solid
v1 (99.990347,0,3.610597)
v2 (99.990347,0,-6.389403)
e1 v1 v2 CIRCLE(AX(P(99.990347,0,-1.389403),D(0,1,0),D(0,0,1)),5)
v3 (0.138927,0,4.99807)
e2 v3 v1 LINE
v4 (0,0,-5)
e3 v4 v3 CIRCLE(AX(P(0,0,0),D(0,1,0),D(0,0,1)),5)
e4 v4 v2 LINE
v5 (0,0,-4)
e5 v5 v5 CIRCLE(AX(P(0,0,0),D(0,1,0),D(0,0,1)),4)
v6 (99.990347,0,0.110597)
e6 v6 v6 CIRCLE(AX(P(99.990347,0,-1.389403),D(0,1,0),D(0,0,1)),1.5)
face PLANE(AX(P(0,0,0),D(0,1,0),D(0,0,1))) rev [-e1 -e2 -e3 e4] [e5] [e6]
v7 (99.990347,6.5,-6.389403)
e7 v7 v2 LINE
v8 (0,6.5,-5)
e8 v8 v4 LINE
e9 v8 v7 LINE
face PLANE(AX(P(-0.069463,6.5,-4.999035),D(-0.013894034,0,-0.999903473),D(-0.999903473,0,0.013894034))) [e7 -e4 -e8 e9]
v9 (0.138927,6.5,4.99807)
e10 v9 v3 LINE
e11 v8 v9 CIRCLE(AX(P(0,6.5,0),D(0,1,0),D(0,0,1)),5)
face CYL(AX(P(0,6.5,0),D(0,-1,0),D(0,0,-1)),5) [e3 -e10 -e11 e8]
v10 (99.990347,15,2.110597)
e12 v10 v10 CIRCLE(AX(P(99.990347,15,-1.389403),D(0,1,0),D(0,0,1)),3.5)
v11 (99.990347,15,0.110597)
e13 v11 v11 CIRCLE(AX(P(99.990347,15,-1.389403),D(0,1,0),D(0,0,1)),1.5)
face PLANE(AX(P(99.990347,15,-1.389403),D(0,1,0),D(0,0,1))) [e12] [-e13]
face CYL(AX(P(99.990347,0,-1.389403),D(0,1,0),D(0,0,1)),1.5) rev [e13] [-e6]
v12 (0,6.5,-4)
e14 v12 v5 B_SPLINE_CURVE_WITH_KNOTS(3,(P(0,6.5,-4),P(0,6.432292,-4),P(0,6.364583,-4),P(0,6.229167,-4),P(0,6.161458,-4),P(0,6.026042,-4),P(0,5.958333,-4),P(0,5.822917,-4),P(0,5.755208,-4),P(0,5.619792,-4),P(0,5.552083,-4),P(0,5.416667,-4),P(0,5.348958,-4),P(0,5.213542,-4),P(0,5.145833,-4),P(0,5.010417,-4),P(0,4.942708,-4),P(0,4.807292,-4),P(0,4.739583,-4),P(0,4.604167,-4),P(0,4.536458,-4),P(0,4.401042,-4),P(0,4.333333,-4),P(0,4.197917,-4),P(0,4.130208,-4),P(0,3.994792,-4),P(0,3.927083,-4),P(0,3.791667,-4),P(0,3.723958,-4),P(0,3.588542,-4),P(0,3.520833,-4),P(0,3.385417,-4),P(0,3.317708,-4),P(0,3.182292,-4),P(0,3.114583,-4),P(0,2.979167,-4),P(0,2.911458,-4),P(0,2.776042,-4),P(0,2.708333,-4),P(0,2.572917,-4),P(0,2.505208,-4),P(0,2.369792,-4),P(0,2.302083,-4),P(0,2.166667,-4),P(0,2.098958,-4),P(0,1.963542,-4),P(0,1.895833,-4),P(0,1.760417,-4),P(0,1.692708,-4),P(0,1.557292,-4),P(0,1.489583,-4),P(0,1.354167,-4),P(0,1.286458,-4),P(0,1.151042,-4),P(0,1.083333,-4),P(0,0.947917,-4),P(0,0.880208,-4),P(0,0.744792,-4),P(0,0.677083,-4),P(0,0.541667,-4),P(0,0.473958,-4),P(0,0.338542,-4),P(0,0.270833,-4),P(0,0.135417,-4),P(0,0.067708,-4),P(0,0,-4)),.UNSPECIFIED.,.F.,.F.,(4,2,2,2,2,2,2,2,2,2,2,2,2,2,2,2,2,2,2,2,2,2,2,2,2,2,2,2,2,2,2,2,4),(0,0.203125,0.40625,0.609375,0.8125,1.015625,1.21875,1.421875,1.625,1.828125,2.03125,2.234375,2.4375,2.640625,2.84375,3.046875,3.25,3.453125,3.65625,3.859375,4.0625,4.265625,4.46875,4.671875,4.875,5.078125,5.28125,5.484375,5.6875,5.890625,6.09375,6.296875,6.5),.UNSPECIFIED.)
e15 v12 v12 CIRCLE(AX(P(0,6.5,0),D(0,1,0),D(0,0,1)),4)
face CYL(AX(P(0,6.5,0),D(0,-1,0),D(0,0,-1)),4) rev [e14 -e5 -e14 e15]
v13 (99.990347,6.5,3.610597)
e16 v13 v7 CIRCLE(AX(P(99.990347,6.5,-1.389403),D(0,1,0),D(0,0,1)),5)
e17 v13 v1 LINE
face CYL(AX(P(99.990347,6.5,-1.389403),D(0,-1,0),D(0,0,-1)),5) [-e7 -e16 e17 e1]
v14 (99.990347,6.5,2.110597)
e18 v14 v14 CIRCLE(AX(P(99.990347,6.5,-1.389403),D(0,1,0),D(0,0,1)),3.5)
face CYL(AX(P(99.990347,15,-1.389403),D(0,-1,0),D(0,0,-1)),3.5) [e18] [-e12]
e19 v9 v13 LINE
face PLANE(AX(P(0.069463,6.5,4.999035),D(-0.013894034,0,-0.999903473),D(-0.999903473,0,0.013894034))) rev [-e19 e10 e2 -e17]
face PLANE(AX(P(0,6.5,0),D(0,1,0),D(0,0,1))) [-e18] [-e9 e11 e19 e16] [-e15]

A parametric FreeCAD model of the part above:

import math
import FreeCAD as App
import Part
import Sketcher
from FreeCAD import Vector

doc = App.newDocument("Part")
body = doc.addObject("PartDesign::Body", "Body")

sketch1 = body.newObject("Sketcher::SketchObject", "Sketch")
sketch1.AttachmentSupport = (doc.getObject("XZ_Plane"), [""])
sketch1.MapMode = "FlatFace"
sketch1.addGeometry(Part.ArcOfCircle(Part.Circle(Vector(0, 0, 0), Vector(0, 0, 1), 5), math.radians(88.40781), math.radians(270)), False)
sketch1.addGeometry(Part.LineSegment(Vector(0.138927, 4.99807, 0), Vector(99.990347, 3.610597, 0)), False)
sketch1.addGeometry(Part.ArcOfCircle(Part.Circle(Vector(99.990347, -1.389403, 0), Vector(0, 0, 1), 5), math.radians(-90), math.radians(90)), False)
sketch1.addGeometry(Part.LineSegment(Vector(99.990347, -6.389403, 0), Vector(0, -5, 0)), False)
sketch1.addGeometry(Part.Circle(Vector(0, 0, 0), Vector(0, 0, 1), 4), False)
sketch1.addConstraint(Sketcher.Constraint("Coincident", 0, 1, 1, 1))
sketch1.addConstraint(Sketcher.Constraint("Coincident", 1, 2, 2, 2))
sketch1.addConstraint(Sketcher.Constraint("Coincident", 2, 1, 3, 1))
sketch1.addConstraint(Sketcher.Constraint("Coincident", 3, 2, 0, 2))
sketch1.addConstraint(Sketcher.Constraint("Coincident", 0, 3, -1, 1))
sketch1.addConstraint(Sketcher.Constraint("Coincident", 4, 3, -1, 1))
sketch1.addConstraint(Sketcher.Constraint("Equal", 0, 2))
sketch1.addConstraint(Sketcher.Constraint("PointOnObject", 3, 2, -2))
sketch1.addConstraint(Sketcher.Constraint("Parallel", 1, 3))
sketch1.addConstraint(Sketcher.Constraint("Vertical", 2, 3, 1, 2))
sketch1.addConstraint(Sketcher.Constraint("Vertical", 1, 2, 2, 1))
sketch1.addConstraint(Sketcher.Constraint("Diameter", 4, 8.0))
sketch1.addConstraint(Sketcher.Constraint("Radius", 0, 5.0))
sketch1.addConstraint(Sketcher.Constraint("Distance", 3, 100.0))
sketch1.addConstraint(Sketcher.Constraint("Distance", 1, 99.86106))
pad1 = body.newObject("PartDesign::Pad", "Pad")
pad1.Profile = sketch1
pad1.Length = 6.5
pad1.Reversed = True

sketch2 = body.newObject("Sketcher::SketchObject", "Sketch001")
sketch2.AttachmentSupport = (doc.getObject("XZ_Plane"), [""])
sketch2.MapMode = "FlatFace"
sketch2.AttachmentOffset = App.Placement(Vector(0, 0, -6.5), App.Rotation())
sketch2.addGeometry(Part.Circle(Vector(99.990347, -1.389403, 0), Vector(0, 0, 1), 3.5), False)
sketch2.addConstraint(Sketcher.Constraint("Diameter", 0, 7.0))
sketch2.addConstraint(Sketcher.Constraint("DistanceX", -1, 1, 0, 3, 99.990347))
sketch2.addConstraint(Sketcher.Constraint("DistanceY", 0, 3, -1, 1, 1.389403))
pad2 = body.newObject("PartDesign::Pad", "Pad001")
pad2.Profile = sketch2
pad2.Length = 8.5
pad2.Reversed = True

sketch3 = body.newObject("Sketcher::SketchObject", "Sketch002")
sketch3.AttachmentSupport = (doc.getObject("XZ_Plane"), [""])
sketch3.MapMode = "FlatFace"
sketch3.AttachmentOffset = App.Placement(Vector(0, 0, -15), App.Rotation())
sketch3.addGeometry(Part.Circle(Vector(99.990347, -1.389403, 0), Vector(0, 0, 1), 1.5), False)
sketch3.addConstraint(Sketcher.Constraint("Diameter", 0, 3.0))
sketch3.addConstraint(Sketcher.Constraint("DistanceX", -1, 1, 0, 3, 99.990347))
sketch3.addConstraint(Sketcher.Constraint("DistanceY", 0, 3, -1, 1, 1.389403))
pocket1 = body.newObject("PartDesign::Pocket", "Pocket")
pocket1.Profile = sketch3
pocket1.Type = "ThroughAll"
pocket1.Reversed = True

doc.recompute()
